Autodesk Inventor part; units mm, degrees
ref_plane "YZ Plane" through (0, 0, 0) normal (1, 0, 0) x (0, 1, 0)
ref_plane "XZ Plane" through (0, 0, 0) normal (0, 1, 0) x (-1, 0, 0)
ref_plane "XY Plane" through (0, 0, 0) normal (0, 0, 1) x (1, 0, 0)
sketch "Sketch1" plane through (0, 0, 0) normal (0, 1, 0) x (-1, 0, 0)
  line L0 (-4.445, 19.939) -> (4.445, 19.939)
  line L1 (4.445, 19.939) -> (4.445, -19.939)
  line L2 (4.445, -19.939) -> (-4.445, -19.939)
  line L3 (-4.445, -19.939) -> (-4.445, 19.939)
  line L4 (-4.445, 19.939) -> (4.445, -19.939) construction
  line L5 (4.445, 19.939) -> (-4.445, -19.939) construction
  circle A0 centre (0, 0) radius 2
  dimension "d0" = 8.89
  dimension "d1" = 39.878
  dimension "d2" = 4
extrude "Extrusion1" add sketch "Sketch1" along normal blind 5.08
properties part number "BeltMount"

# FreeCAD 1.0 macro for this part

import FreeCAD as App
import Part
import Sketcher
from FreeCAD import Vector
Q = App.Units.Quantity


def add_polygon(sketch, points):
    """Adds a closed chain of lines whose ends are joined by coincident constraints."""
    first, n = sketch.GeometryCount, len(points)
    for a, b in zip(points, points[1:] + points[:1]):
        sketch.addGeometry(Part.LineSegment(App.Vector(*a, 0), App.Vector(*b, 0)), False)
    for i in range(n):
        sketch.addConstraint(Sketcher.Constraint("Coincident", first + i, 2, first + (i + 1) % n, 1))

doc = App.newDocument("Part")
params = doc.addObject("Spreadsheet::Sheet", "Params")
for row, (alias, value) in enumerate([
    ("sketch1_width", "0.35 in"),
    ("sketch1_height", "1.57 in"),
    ("pad1_length", "0.2 in"),
], start=1):
    params.set(f"A{row}", alias)
    params.set(f"B{row}", "=" + value)
    params.setAlias(f"B{row}", alias)

body = doc.addObject("PartDesign::Body", "Body")

sketch1 = body.newObject("Sketcher::SketchObject", "Sketch")
sketch1.AttachmentSupport = (doc.getObject("XZ_Plane"), [""])
sketch1.MapMode = "FlatFace"
add_polygon(sketch1, [(-4.445, 19.939), (4.445, 19.939), (4.445, -19.939), (-4.445, -19.939)])
sketch1.addGeometry(Part.Circle(Vector(0, 0, 0), Vector(0, 0, 1), 2), False)
sketch1.addConstraint(Sketcher.Constraint("Horizontal", 0))
sketch1.addConstraint(Sketcher.Constraint("Vertical", 1))
sketch1.addConstraint(Sketcher.Constraint("Horizontal", 2))
sketch1.addConstraint(Sketcher.Constraint("Vertical", 3))
sketch1.addConstraint(Sketcher.Constraint("Coincident", 4, 3, -1, 1))
sketch1.addConstraint(Sketcher.Constraint("Symmetric", 0, 2, 2, 2, -1, 1))
sketch1.addConstraint(Sketcher.Constraint("DistanceX", 0, 1, 0, 2, Q("0.35 in")))
sketch1.addConstraint(Sketcher.Constraint("DistanceY", 1, 2, 1, 1, Q("1.57 in")))
sketch1.addConstraint(Sketcher.Constraint("Diameter", 4, 4.0))
sketch1.setExpression("Constraints[10]", "Params.sketch1_width")
sketch1.setExpression("Constraints[11]", "Params.sketch1_height")
pad1 = body.newObject("PartDesign::Pad", "Pad")
pad1.Profile = sketch1
pad1.setExpression("Length", "Params.pad1_length")
pad1.Reversed = True

doc.recompute()
